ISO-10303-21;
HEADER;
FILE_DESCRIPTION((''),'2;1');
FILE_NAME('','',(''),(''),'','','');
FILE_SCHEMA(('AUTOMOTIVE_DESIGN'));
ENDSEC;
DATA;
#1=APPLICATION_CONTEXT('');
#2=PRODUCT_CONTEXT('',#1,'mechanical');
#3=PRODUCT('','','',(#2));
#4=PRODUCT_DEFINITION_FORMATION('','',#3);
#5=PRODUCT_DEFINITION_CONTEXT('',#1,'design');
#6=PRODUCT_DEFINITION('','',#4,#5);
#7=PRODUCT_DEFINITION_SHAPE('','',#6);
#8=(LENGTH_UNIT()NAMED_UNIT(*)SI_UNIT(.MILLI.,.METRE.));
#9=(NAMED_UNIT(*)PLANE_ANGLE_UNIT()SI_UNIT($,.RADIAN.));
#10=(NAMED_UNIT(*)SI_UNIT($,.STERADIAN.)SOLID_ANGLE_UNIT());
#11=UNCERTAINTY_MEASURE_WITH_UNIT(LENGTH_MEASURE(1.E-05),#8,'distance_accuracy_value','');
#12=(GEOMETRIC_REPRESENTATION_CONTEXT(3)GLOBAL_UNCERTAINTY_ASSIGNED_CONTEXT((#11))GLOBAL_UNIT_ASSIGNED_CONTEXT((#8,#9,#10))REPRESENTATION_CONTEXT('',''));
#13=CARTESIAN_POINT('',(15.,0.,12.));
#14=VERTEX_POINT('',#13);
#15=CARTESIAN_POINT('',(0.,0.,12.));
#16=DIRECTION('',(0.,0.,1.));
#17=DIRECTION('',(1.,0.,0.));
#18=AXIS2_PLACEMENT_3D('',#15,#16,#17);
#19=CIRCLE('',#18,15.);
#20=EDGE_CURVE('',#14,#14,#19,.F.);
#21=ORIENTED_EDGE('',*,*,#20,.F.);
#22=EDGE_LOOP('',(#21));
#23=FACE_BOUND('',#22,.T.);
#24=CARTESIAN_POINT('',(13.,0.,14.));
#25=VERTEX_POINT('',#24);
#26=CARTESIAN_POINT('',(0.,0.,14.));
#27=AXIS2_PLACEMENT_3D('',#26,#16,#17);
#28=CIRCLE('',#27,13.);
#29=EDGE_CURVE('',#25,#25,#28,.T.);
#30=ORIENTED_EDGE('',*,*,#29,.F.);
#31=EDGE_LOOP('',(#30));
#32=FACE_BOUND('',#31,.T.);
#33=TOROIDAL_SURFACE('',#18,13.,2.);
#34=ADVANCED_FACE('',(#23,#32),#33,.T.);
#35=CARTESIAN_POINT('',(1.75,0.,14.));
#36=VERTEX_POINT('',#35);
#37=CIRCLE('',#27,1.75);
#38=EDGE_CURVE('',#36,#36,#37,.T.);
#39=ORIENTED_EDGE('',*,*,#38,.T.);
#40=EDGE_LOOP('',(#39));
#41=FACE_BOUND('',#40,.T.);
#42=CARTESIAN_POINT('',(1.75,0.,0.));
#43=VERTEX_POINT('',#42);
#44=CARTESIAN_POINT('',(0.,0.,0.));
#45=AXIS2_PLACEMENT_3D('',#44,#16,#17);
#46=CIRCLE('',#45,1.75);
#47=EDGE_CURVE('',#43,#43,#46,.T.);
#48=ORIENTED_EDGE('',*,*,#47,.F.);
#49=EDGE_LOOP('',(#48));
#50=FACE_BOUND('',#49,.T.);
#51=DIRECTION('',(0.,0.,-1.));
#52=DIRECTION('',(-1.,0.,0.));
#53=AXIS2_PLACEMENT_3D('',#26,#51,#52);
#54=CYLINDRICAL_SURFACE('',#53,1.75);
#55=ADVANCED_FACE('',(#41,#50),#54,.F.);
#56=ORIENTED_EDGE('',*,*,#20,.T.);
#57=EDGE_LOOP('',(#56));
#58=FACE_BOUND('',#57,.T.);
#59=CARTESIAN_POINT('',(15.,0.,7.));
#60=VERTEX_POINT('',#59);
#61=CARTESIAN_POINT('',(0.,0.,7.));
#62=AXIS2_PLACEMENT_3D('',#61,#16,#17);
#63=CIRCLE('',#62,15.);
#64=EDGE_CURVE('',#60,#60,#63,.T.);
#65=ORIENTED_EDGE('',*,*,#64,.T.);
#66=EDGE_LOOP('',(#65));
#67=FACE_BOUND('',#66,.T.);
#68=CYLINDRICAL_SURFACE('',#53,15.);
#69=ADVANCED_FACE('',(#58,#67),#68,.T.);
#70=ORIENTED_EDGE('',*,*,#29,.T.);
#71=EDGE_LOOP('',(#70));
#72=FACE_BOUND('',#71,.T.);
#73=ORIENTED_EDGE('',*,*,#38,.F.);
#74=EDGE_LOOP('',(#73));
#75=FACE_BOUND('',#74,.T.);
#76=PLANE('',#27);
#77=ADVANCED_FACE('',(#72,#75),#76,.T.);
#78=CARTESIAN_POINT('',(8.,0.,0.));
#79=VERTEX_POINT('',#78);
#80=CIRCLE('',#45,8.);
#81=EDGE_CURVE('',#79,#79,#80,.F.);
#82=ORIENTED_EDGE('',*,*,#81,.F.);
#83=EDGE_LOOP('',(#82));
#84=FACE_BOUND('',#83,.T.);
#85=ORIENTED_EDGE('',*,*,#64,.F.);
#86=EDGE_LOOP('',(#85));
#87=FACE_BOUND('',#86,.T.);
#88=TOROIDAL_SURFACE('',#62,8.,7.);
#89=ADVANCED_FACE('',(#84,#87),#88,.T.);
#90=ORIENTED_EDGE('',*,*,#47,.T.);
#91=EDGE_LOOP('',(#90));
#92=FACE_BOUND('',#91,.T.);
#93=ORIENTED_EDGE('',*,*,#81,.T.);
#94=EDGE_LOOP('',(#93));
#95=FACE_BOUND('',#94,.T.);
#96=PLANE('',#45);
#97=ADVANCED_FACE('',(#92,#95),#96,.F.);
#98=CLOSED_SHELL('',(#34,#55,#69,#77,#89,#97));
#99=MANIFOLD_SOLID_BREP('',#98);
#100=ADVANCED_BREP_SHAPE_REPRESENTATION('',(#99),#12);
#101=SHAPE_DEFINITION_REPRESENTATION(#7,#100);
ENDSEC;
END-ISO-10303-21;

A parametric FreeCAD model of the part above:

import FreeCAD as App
import Part
import Sketcher
Q = App.Units.Quantity


def edges_at(feature, points):
    """Names of the edges that pass closest to the given points."""
    edges = feature.Shape.Edges
    near = lambda p: min(range(len(edges)), key=lambda i: edges[i].distToShape(Part.Vertex(*p))[0])
    return sorted({f"Edge{near(p) + 1}" for p in points})

doc = App.newDocument("Part")
body = doc.addObject("PartDesign::Body", "Body")

sketch1 = body.newObject("Sketcher::SketchObject", "Sketch")
sketch1.AttachmentSupport = (doc.getObject("XY_Plane"), [""])
sketch1.MapMode = "FlatFace"
sketch1.addGeometry([
    Part.Circle(App.Vector(0, 0, 0), App.Vector(0, 0, 1), 15),
    Part.Circle(App.Vector(0, 0, 0), App.Vector(0, 0, 1), 1.75),
], False)
sketch1.addConstraint([
    Sketcher.Constraint("Coincident", 0, 3, -1, 1),
    Sketcher.Constraint("Coincident", 1, 3, -1, 1),
    Sketcher.Constraint("Diameter", 0, Q("30 mm")),
    Sketcher.Constraint("Diameter", 1, Q("3.5 mm")),
])
pad1 = body.newObject("PartDesign::Pad", "Pad")
pad1.Profile = sketch1
pad1.Length = 14
doc.recompute()

fillet = body.newObject("PartDesign::Fillet", "Fillet")
fillet.Base = (pad1, edges_at(pad1, [(-15, 0, 14)]))
fillet.Radius = 2
doc.recompute()

fillet2 = body.newObject("PartDesign::Fillet", "Fillet001")
fillet2.Base = (fillet, edges_at(fillet, [(-15, 0, 0)]))
fillet2.Radius = 7

doc.recompute()
